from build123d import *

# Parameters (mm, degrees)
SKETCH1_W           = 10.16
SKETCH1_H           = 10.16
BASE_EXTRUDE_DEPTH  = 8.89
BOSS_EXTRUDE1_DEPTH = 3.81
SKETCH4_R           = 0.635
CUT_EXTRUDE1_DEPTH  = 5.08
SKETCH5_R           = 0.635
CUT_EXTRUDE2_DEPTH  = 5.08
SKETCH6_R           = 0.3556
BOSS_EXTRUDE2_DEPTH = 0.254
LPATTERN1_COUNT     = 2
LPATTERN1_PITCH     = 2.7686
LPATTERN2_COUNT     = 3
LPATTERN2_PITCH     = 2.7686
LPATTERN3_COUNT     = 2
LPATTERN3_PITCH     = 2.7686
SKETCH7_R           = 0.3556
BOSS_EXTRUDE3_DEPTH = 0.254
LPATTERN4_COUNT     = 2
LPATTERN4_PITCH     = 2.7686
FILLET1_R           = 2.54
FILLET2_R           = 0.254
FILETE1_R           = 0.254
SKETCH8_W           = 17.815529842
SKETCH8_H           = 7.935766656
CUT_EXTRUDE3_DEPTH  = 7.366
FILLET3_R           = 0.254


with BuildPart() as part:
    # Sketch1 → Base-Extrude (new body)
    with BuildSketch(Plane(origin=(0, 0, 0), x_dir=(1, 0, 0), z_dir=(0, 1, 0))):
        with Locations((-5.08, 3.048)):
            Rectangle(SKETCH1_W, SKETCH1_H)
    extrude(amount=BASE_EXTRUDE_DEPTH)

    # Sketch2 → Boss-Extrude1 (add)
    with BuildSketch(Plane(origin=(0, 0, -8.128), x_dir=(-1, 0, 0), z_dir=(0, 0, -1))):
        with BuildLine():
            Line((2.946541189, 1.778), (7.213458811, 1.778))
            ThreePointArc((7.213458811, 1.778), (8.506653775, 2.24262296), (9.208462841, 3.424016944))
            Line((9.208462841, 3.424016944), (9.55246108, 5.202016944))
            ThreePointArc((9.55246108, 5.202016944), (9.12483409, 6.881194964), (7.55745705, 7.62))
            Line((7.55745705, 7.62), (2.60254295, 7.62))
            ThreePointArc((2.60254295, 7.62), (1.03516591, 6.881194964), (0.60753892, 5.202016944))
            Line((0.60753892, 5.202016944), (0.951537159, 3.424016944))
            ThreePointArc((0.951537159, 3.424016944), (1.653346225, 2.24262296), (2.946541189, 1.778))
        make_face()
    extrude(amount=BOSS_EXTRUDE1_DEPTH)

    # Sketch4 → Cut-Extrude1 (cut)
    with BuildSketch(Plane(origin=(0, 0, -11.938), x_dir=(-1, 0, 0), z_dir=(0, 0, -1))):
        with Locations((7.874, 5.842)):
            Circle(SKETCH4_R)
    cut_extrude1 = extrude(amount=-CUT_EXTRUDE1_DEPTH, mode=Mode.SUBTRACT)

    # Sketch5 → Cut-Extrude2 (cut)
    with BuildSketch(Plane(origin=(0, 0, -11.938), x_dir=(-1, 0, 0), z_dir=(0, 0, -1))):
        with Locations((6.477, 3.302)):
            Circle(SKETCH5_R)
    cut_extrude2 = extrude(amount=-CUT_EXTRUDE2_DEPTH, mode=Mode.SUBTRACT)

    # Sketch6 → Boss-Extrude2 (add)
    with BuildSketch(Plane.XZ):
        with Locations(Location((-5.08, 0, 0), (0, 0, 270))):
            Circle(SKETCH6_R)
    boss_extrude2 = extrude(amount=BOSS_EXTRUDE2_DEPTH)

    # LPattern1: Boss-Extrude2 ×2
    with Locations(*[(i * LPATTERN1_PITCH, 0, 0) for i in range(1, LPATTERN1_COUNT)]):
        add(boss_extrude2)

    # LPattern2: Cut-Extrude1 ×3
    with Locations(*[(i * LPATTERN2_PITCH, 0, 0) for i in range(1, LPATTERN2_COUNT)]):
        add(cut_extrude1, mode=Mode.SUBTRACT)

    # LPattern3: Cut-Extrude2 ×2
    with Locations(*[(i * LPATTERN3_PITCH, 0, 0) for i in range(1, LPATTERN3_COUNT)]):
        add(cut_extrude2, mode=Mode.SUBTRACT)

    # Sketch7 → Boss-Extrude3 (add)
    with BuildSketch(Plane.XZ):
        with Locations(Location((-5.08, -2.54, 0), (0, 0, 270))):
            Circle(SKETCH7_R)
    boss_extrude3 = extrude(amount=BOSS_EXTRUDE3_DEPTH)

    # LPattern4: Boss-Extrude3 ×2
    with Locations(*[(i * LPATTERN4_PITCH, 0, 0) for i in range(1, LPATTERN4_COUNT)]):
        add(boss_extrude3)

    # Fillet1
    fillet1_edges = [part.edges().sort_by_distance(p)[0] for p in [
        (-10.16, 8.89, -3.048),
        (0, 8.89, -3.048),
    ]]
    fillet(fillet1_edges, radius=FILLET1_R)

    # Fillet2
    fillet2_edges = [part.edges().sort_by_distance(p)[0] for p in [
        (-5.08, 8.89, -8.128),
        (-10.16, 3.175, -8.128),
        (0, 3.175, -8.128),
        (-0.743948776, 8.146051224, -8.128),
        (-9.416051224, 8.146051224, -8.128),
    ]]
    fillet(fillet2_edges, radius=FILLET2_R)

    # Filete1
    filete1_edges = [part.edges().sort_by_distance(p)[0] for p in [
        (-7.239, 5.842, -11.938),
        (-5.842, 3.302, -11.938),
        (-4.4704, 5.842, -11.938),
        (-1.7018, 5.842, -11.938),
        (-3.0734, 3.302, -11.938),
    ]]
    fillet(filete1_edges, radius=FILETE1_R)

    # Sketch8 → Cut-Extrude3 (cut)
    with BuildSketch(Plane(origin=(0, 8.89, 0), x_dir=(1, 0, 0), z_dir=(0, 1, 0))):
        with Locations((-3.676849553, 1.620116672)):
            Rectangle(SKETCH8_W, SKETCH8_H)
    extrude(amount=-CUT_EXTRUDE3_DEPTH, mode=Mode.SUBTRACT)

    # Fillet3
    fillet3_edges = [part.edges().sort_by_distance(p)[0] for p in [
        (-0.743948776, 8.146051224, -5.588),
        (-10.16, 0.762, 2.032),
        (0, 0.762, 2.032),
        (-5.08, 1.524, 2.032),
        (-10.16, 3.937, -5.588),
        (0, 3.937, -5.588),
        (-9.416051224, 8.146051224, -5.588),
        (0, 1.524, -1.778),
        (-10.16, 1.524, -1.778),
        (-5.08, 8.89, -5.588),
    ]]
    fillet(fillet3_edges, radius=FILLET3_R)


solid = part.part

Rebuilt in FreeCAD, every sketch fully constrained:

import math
import FreeCAD as App
import Part
import Sketcher

V = App.Vector
Q = App.Units.Quantity


def edges_at(feature, points):
    """Names of the edges that pass closest to the given points."""
    edges = feature.Shape.Edges
    near = lambda p: min(range(len(edges)), key=lambda i: edges[i].distToShape(Part.Vertex(*p))[0])
    return sorted({f"Edge{near(p) + 1}" for p in points})

doc = App.newDocument("Part")
body = doc.addObject("PartDesign::Body", "Body")

# Sketch on XZ plane
sketch1 = body.newObject("Sketcher::SketchObject", "Sketch")
sketch1.AttachmentSupport = (doc.getObject("XZ_Plane"), [""])
sketch1.MapMode = "FlatFace"
sketch1.addGeometry([
    Part.LineSegment(V(-10, -8, 0), V(-10, 2, 0)),
    Part.LineSegment(V(-10, 2, 0), V(0, 2, 0)),
    Part.LineSegment(V(0, 2, 0), V(0, -8, 0)),
    Part.LineSegment(V(0, -8, 0), V(-10, -8, 0)),
], False)
sketch1.addConstraint([
    Sketcher.Constraint("Coincident", 0, 2, 1, 1),
    Sketcher.Constraint("Coincident", 1, 2, 2, 1),
    Sketcher.Constraint("Coincident", 2, 2, 3, 1),
    Sketcher.Constraint("Coincident", 3, 2, 0, 1),
    Sketcher.Constraint("Vertical", 0),
    Sketcher.Constraint("Horizontal", 1),
    Sketcher.Constraint("Vertical", 2),
    Sketcher.Constraint("Horizontal", 3),
    Sketcher.Constraint("PointOnObject", 1, 2, -2),
    Sketcher.Constraint("Equal", 3, 0),
    Sketcher.Constraint("DistanceX", 1, 1, 1, 2, Q("0.4 in")),
    Sketcher.Constraint("DistanceY", -1, 1, 0, 2, Q("0.08 in")),
])
pad1 = body.newObject("PartDesign::Pad", "Pad")
pad1.Profile = sketch1
pad1.Length = Q("0.35 in")
pad1.Reversed = True

# Sketch on XY plane
sketch2 = body.newObject("Sketcher::SketchObject", "Sketch001")
sketch2.AttachmentSupport = (doc.getObject("XY_Plane"), [""])
sketch2.MapMode = "FlatFace"
sketch2.AttachmentOffset = App.Placement(V(0, 0, -0.32 * 25.4), App.Rotation())
sketch2.addGeometry([
    Part.LineSegment(V(-2.9, 1.8, 0), V(-7.2, 1.8, 0)),  # 0
    Part.ArcOfCircle(Part.Circle(V(-7.2, 3.8, 0), V(0, 0, 1), 2), math.radians(-169), math.radians(-90)),  # 1
    Part.LineSegment(V(-9.2, 3.4, 0), V(-9.6, 5.2, 0)),  # 2
    Part.ArcOfCircle(Part.Circle(V(-7.6, 5.6, 0), V(0, 0, 1), 2), math.radians(90), math.radians(191)),  # 3
    Part.LineSegment(V(-7.6, 7.6, 0), V(-2.6, 7.6, 0)),  # 4
    Part.ArcOfCircle(Part.Circle(V(-2.6, 5.6, 0), V(0, 0, 1), 2), math.radians(-11), math.radians(90)),  # 5
    Part.LineSegment(V(-0.6, 5.2, 0), V(-1, 3.4, 0)),  # 6
    Part.ArcOfCircle(Part.Circle(V(-2.9, 3.8, 0), V(0, 0, 1), 2), math.radians(-90), math.radians(-11)),  # 7
], False)
sketch2.addConstraint([
    Sketcher.Constraint("Tangent", 0, 2, 1, 2),
    Sketcher.Constraint("Tangent", 1, 1, 2, 1),
    Sketcher.Constraint("Tangent", 2, 2, 3, 2),
    Sketcher.Constraint("Tangent", 3, 1, 4, 1),
    Sketcher.Constraint("Tangent", 4, 2, 5, 2),
    Sketcher.Constraint("Tangent", 5, 1, 6, 1),
    Sketcher.Constraint("Tangent", 6, 2, 7, 2),
    Sketcher.Constraint("Tangent", 7, 1, 0, 1),
    Sketcher.Constraint("Horizontal", 0),
    Sketcher.Constraint("Horizontal", 4),
    Sketcher.Constraint("Equal", 1, 3),
    Sketcher.Constraint("Equal", 3, 5),
    Sketcher.Constraint("Equal", 5, 7),
    Sketcher.Constraint("Horizontal", 2, 2, 5, 1),
    Sketcher.Constraint("Radius", 1, Q("0.08 in")),
    Sketcher.Constraint("DistanceY", -1, 1, 3, 1, Q("0.3 in")),
    Sketcher.Constraint("DistanceY", -1, 1, 1, 3, Q("0.15 in")),
    Sketcher.Constraint("Angle", 2, Q("100.95 deg")),
    Sketcher.Constraint("DistanceX", 0, 2, 0, 1, Q("4.266918 mm")),
    Sketcher.Constraint("DistanceX", 1, 3, -1, 1, Q("7.213459 mm")),
])
pad2 = body.newObject("PartDesign::Pad", "Pad001")
pad2.Profile = sketch2
pad2.Length = Q("0.15 in")
pad2.Reversed = True

# Sketch on XY plane
sketch3 = body.newObject("Sketcher::SketchObject", "Sketch002")
sketch3.AttachmentSupport = (doc.getObject("XY_Plane"), [""])
sketch3.MapMode = "FlatFace"
sketch3.AttachmentOffset = App.Placement(V(0, 0, -0.47 * 25.4), App.Rotation())
sketch3.addGeometry(Part.Circle(V(-7.9, 5.8, 0), V(0, 0, 1), 0.6), False)
sketch3.addConstraint([
    Sketcher.Constraint("Diameter", 0, Q("0.05 in")),
    Sketcher.Constraint("DistanceX", 0, 3, -1, 1, Q("0.31 in")),
    Sketcher.Constraint("DistanceY", -1, 1, 0, 3, Q("0.23 in")),
])
pocket1 = body.newObject("PartDesign::Pocket", "Pocket")
pocket1.Profile = sketch3
pocket1.Length = Q("0.2 in")
pocket1.Reversed = True

# Sketch on XY plane
sketch4 = body.newObject("Sketcher::SketchObject", "Sketch003")
sketch4.AttachmentSupport = (doc.getObject("XY_Plane"), [""])
sketch4.MapMode = "FlatFace"
sketch4.AttachmentOffset = App.Placement(V(0, 0, -0.47 * 25.4), App.Rotation())
sketch4.addGeometry(Part.Circle(V(-6.5, 3.3, 0), V(0, 0, 1), 0.6), False)
sketch4.addConstraint([
    Sketcher.Constraint("Diameter", 0, Q("0.05 in")),
    Sketcher.Constraint("DistanceY", -1, 1, 0, 3, Q("0.13 in")),
    Sketcher.Constraint("DistanceX", 0, 3, -1, 1, Q("0.255 in")),
])
pocket2 = body.newObject("PartDesign::Pocket", "Pocket001")
pocket2.Profile = sketch4
pocket2.Length = Q("0.2 in")
pocket2.Reversed = True

# Sketch on XZ plane
sketch5 = body.newObject("Sketcher::SketchObject", "Sketch004")
sketch5.AttachmentSupport = (doc.getObject("XZ_Plane"), [""])
sketch5.MapMode = "FlatFace"
sketch5.addGeometry(Part.Circle(V(-5.08, 0, 0), V(0, 0, 1), 0.36), False)
sketch5.addConstraint([
    Sketcher.Constraint("PointOnObject", 0, 3, -1),
    Sketcher.Constraint("Diameter", 0, Q("0.028 in")),
    Sketcher.Constraint("DistanceX", 0, 3, -1, 1, Q("0.2 in")),
])
pad3 = body.newObject("PartDesign::Pad", "Pad002")
pad3.Profile = sketch5
pad3.Length = Q("0.01 in")
doc.recompute()

linearpattern = body.newObject("PartDesign::LinearPattern", "LinearPattern")
linearpattern.Originals = [pad3]
linearpattern.Direction = (doc.getObject("X_Axis"), [""])
linearpattern.Mode = "offset"
linearpattern.Offset = Q("0.109 in")
linearpattern.Occurrences = 2
body.Tip = linearpattern
doc.recompute()

linearpattern2 = body.newObject("PartDesign::LinearPattern", "LinearPattern001")
linearpattern2.Originals = [pocket1]
linearpattern2.Direction = (doc.getObject("X_Axis"), [""])
linearpattern2.Mode = "offset"
linearpattern2.Offset = Q("0.109 in")
linearpattern2.Occurrences = 3
body.Tip = linearpattern2
doc.recompute()

linearpattern3 = body.newObject("PartDesign::LinearPattern", "LinearPattern002")
linearpattern3.Originals = [pocket2]
linearpattern3.Direction = (doc.getObject("X_Axis"), [""])
linearpattern3.Mode = "offset"
linearpattern3.Offset = Q("0.109 in")
linearpattern3.Occurrences = 2
body.Tip = linearpattern3

# Sketch on XZ plane
sketch6 = body.newObject("Sketcher::SketchObject", "Sketch005")
sketch6.AttachmentSupport = (doc.getObject("XZ_Plane"), [""])
sketch6.MapMode = "FlatFace"
sketch6.addGeometry(Part.Circle(V(-5.08, -2.54, 0), V(0, 0, 1), 0.36), False)
sketch6.addConstraint([
    Sketcher.Constraint("Diameter", 0, Q("0.028 in")),
    Sketcher.Constraint("DistanceX", 0, 3, -1, 1, Q("0.2 in")),
    Sketcher.Constraint("DistanceY", 0, 3, -1, 1, Q("0.1 in")),
])
pad4 = body.newObject("PartDesign::Pad", "Pad003")
pad4.Profile = sketch6
pad4.Length = Q("0.01 in")
doc.recompute()

linearpattern4 = body.newObject("PartDesign::LinearPattern", "LinearPattern003")
linearpattern4.Originals = [pad4]
linearpattern4.Direction = (doc.getObject("X_Axis"), [""])
linearpattern4.Mode = "offset"
linearpattern4.Offset = Q("0.109 in")
linearpattern4.Occurrences = 2
body.Tip = linearpattern4
doc.recompute()

fillet = body.newObject("PartDesign::Fillet", "Fillet")
fillet.Base = (linearpattern4, edges_at(linearpattern4, [(-10.16, 8.89, -3.048), (0, 8.89, -3.048)]))
fillet.Radius = Q("0.1 in")
doc.recompute()

fillet2 = body.newObject("PartDesign::Fillet", "Fillet001")
fillet2.Base = (fillet, edges_at(fillet, [
    (-5.08, 8.89, -8.128),
    (-10.16, 3.175, -8.128),
    (0, 3.175, -8.128),
    (-0.744, 8.146, -8.128),
    (-9.416, 8.146, -8.128),
]))
fillet2.Radius = Q("0.01 in")
doc.recompute()

fillet3 = body.newObject("PartDesign::Fillet", "Fillet002")
fillet3.Base = (fillet2, edges_at(fillet2, [
    (-7.239, 5.842, -11.938),
    (-5.842, 3.302, -11.938),
    (-4.47, 5.842, -11.938),
    (-1.702, 5.842, -11.938),
    (-3.073, 3.302, -11.938),
]))
fillet3.Radius = Q("0.01 in")

# Sketch on XZ plane
sketch7 = body.newObject("Sketcher::SketchObject", "Sketch006")
sketch7.AttachmentSupport = (doc.getObject("XZ_Plane"), [""])
sketch7.MapMode = "FlatFace"
sketch7.AttachmentOffset = App.Placement(V(0, 0, -0.35 * 25.4), App.Rotation())
sketch7.addGeometry([
    Part.LineSegment(V(-13, -6, 0), V(-13, 2, 0)),
    Part.LineSegment(V(-13, 2, 0), V(5, 2, 0)),
    Part.LineSegment(V(5, 2, 0), V(5, -6, 0)),
    Part.LineSegment(V(5, -6, 0), V(-13, -6, 0)),
], False)
sketch7.addConstraint([
    Sketcher.Constraint("Coincident", 0, 2, 1, 1),
    Sketcher.Constraint("Coincident", 1, 2, 2, 1),
    Sketcher.Constraint("Coincident", 2, 2, 3, 1),
    Sketcher.Constraint("Coincident", 3, 2, 0, 1),
    Sketcher.Constraint("Vertical", 0),
    Sketcher.Constraint("Horizontal", 1),
    Sketcher.Constraint("Vertical", 2),
    Sketcher.Constraint("Horizontal", 3),
    Sketcher.Constraint("DistanceY", 2, 2, -1, 1, Q("0.22 in")),
    Sketcher.Constraint("DistanceX", 1, 1, 1, 2, Q("17.81553 mm")),
    Sketcher.Constraint("DistanceY", 0, 1, 0, 2, Q("7.935767 mm")),
    Sketcher.Constraint("DistanceX", 0, 2, -1, 1, Q("12.584614 mm")),
])
pocket3 = body.newObject("PartDesign::Pocket", "Pocket002")
pocket3.Profile = sketch7
pocket3.Length = Q("0.29 in")
pocket3.Reversed = True
doc.recompute()

fillet4 = body.newObject("PartDesign::Fillet", "Fillet003")
fillet4.Base = (pocket3, edges_at(pocket3, [
    (-0.744, 8.146, -5.588),
    (-10.16, 0.762, 2.032),
    (0, 0.762, 2.032),
    (-5.08, 1.524, 2.032),
    (-10.16, 3.937, -5.588),
    (0, 3.937, -5.588),
    (-9.416, 8.146, -5.588),
    (0, 1.524, -1.778),
    (-10.16, 1.524, -1.778),
    (-5.08, 8.89, -5.588),
]))
fillet4.Radius = Q("0.01 in")

doc.recompute()
